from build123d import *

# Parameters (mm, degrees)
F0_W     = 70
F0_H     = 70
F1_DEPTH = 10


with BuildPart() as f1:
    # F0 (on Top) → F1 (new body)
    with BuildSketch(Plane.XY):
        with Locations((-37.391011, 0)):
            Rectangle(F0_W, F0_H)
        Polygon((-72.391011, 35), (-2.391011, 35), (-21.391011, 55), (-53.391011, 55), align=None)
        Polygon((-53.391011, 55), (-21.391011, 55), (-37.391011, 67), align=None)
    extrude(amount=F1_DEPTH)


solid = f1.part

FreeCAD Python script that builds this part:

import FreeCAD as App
import Part
import Sketcher
Q = App.Units.Quantity


def add_polygon(sketch, points):
    """Adds a closed chain of lines whose ends are joined by coincident constraints."""
    first, n = sketch.GeometryCount, len(points)
    for a, b in zip(points, points[1:] + points[:1]):
        sketch.addGeometry(Part.LineSegment(App.Vector(*a, 0), App.Vector(*b, 0)), False)
    for i in range(n):
        sketch.addConstraint(Sketcher.Constraint("Coincident", first + i, 2, first + (i + 1) % n, 1))

doc = App.newDocument("Part")
params = doc.addObject("Spreadsheet::Sheet", "Params")
for row, (alias, value) in enumerate([
    ("sketch1_width", "70 mm"),
    ("sketch1_length", "20 mm"),
    ("pad1_length", "10 mm"),
], start=1):
    params.set(f"A{row}", alias)
    params.set(f"B{row}", "=" + value)
    params.setAlias(f"B{row}", alias)

body = doc.addObject("PartDesign::Body", "Body")

# Sketch on XY plane
sketch1 = body.newObject("Sketcher::SketchObject", "Sketch")
sketch1.AttachmentSupport = (doc.getObject("XY_Plane"), [""])
sketch1.MapMode = "FlatFace"
add_polygon(sketch1, [(-72, 35), (-72, -35), (-2, -35), (-2, 35), (-21, 55), (-37, 67), (-53, 55)])  # lines 0-6
sketch1.addConstraint(Sketcher.Constraint("Vertical", 0))
sketch1.addConstraint(Sketcher.Constraint("Horizontal", 1))
sketch1.addConstraint(Sketcher.Constraint("Vertical", 2))
sketch1.addConstraint(Sketcher.Constraint("Horizontal", 3, 2, 5, 2))
sketch1.addConstraint(Sketcher.Constraint("Horizontal", 2, 2, 6, 2))
sketch1.addConstraint(Sketcher.Constraint("Equal", 1, 0))
sketch1.addConstraint(Sketcher.Constraint("Equal", 4, 5))
sketch1.addConstraint(Sketcher.Constraint("Equal", 3, 6))
sketch1.addConstraint(Sketcher.Constraint("DistanceX", 1, 1, 1, 2, Q("70 mm")))
sketch1.addConstraint(Sketcher.Constraint("Distance", 4, Q("20 mm")))
sketch1.addConstraint(Sketcher.Constraint("DistanceY", 0, 2, -1, 1, Q("35 mm")))
sketch1.addConstraint(Sketcher.Constraint("DistanceY", -1, 1, 3, 2, Q("55 mm")))
sketch1.addConstraint(Sketcher.Constraint("DistanceY", -1, 1, 4, 2, Q("67 mm")))
sketch1.addConstraint(Sketcher.Constraint("DistanceX", 0, 2, -1, 1, Q("72.391011 mm")))
sketch1.setExpression("Constraints[15]", "Params.sketch1_width")
sketch1.setExpression("Constraints[16]", "Params.sketch1_length")
pad1 = body.newObject("PartDesign::Pad", "Pad")
pad1.Profile = sketch1
pad1.setExpression("Length", "Params.pad1_length")

doc.recompute()
